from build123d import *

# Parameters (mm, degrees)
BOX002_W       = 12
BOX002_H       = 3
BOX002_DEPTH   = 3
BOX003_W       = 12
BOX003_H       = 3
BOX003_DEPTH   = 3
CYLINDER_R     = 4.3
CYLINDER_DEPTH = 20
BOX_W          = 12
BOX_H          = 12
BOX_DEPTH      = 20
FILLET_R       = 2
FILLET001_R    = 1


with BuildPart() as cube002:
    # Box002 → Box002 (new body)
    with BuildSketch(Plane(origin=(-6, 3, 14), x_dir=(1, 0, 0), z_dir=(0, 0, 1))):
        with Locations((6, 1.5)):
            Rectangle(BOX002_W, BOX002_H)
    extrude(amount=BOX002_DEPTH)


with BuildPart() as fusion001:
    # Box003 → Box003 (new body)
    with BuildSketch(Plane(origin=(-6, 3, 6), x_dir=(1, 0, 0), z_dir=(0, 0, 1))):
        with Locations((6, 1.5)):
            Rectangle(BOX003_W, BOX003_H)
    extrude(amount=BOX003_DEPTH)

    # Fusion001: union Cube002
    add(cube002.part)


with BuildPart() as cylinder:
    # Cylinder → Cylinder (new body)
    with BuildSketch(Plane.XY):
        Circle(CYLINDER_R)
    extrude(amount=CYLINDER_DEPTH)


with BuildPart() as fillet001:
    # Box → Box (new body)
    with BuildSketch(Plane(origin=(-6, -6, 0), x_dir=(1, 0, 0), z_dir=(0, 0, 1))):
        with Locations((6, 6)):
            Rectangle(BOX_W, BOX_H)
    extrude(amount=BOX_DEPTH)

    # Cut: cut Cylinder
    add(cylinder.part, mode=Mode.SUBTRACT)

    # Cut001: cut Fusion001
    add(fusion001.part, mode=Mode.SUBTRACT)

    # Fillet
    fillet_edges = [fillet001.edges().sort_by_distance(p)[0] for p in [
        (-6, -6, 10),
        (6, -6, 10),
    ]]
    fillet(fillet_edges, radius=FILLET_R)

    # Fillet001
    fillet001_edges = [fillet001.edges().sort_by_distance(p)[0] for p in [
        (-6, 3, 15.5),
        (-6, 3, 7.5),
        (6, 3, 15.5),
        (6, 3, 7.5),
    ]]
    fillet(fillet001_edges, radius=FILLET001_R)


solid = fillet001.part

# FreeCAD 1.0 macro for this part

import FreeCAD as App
import Part
import Sketcher
from FreeCAD import Vector
Q = App.Units.Quantity


def edges_at(feature, points):
    """Names of the edges that pass closest to the given points."""
    edges = feature.Shape.Edges
    near = lambda p: min(range(len(edges)), key=lambda i: edges[i].distToShape(Part.Vertex(*p))[0])
    return sorted({f"Edge{near(p) + 1}" for p in points})

doc = App.newDocument("Part")
params = doc.addObject("Spreadsheet::Sheet", "Params")
for row, (alias, value) in enumerate([
    ("sketch1_width", "12 mm"),
    ("sketch1_height", "3 mm"),
    ("pad1_length", "3 mm"),
    ("sketch2_width", "12 mm"),
    ("sketch2_height", "3 mm"),
    ("pad2_length", "3 mm"),
    ("sketch3_diameter", "8.6 mm"),
    ("pad3_length", "20 mm"),
    ("sketch4_width", "12 mm"),
    ("pad4_length", "20 mm"),
    ("fillet_radius", "2 mm"),
    ("fillet2_radius", "1 mm"),
], start=1):
    params.set(f"A{row}", alias)
    params.set(f"B{row}", "=" + value)
    params.setAlias(f"B{row}", alias)

body = doc.addObject("PartDesign::Body", "Body")

# Sketch on XY plane
sketch1 = body.newObject("Sketcher::SketchObject", "Sketch")
sketch1.AttachmentSupport = (doc.getObject("XY_Plane"), [""])
sketch1.MapMode = "FlatFace"
sketch1.AttachmentOffset = App.Placement(Vector(0, 0, 14), App.Rotation())
sketch1.addGeometry(Part.LineSegment(Vector(-6, 6, 0), Vector(-6, 3, 0)), False)
sketch1.addGeometry(Part.LineSegment(Vector(-6, 3, 0), Vector(6, 3, 0)), False)
sketch1.addGeometry(Part.LineSegment(Vector(6, 3, 0), Vector(6, 6, 0)), False)
sketch1.addGeometry(Part.LineSegment(Vector(6, 6, 0), Vector(-6, 6, 0)), False)
sketch1.addConstraint(Sketcher.Constraint("Coincident", 0, 2, 1, 1))
sketch1.addConstraint(Sketcher.Constraint("Coincident", 1, 2, 2, 1))
sketch1.addConstraint(Sketcher.Constraint("Coincident", 2, 2, 3, 1))
sketch1.addConstraint(Sketcher.Constraint("Coincident", 3, 2, 0, 1))
sketch1.addConstraint(Sketcher.Constraint("Vertical", 0))
sketch1.addConstraint(Sketcher.Constraint("Horizontal", 1))
sketch1.addConstraint(Sketcher.Constraint("Vertical", 2))
sketch1.addConstraint(Sketcher.Constraint("Horizontal", 3))
sketch1.addConstraint(Sketcher.Constraint("DistanceX", 1, 1, 1, 2, Q("12 mm")))
sketch1.addConstraint(Sketcher.Constraint("DistanceY", 0, 2, 0, 1, Q("3 mm")))
sketch1.addConstraint(Sketcher.Constraint("DistanceX", 0, 2, -1, 1, Q("6 mm")))
sketch1.addConstraint(Sketcher.Constraint("DistanceY", -1, 1, 0, 2, Q("3 mm")))
sketch1.setExpression("Constraints[8]", "Params.sketch1_width")
sketch1.setExpression("Constraints[9]", "Params.sketch1_height")
pad1 = body.newObject("PartDesign::Pad", "Pad")
pad1.Profile = sketch1
pad1.setExpression("Length", "Params.pad1_length")
body2 = doc.addObject("PartDesign::Body", "Body001")
body2.AllowCompound = True

# Sketch on XY plane
sketch2 = body2.newObject("Sketcher::SketchObject", "Sketch001")
sketch2.AttachmentSupport = (doc.getObject("XY_Plane001"), [""])
sketch2.MapMode = "FlatFace"
sketch2.AttachmentOffset = App.Placement(Vector(0, 0, 6), App.Rotation())
sketch2.addGeometry(Part.LineSegment(Vector(-6, 6, 0), Vector(-6, 3, 0)), False)
sketch2.addGeometry(Part.LineSegment(Vector(-6, 3, 0), Vector(6, 3, 0)), False)
sketch2.addGeometry(Part.LineSegment(Vector(6, 3, 0), Vector(6, 6, 0)), False)
sketch2.addGeometry(Part.LineSegment(Vector(6, 6, 0), Vector(-6, 6, 0)), False)
sketch2.addConstraint(Sketcher.Constraint("Coincident", 0, 2, 1, 1))
sketch2.addConstraint(Sketcher.Constraint("Coincident", 1, 2, 2, 1))
sketch2.addConstraint(Sketcher.Constraint("Coincident", 2, 2, 3, 1))
sketch2.addConstraint(Sketcher.Constraint("Coincident", 3, 2, 0, 1))
sketch2.addConstraint(Sketcher.Constraint("Vertical", 0))
sketch2.addConstraint(Sketcher.Constraint("Horizontal", 1))
sketch2.addConstraint(Sketcher.Constraint("Vertical", 2))
sketch2.addConstraint(Sketcher.Constraint("Horizontal", 3))
sketch2.addConstraint(Sketcher.Constraint("DistanceX", 1, 1, 1, 2, Q("12 mm")))
sketch2.addConstraint(Sketcher.Constraint("DistanceY", 0, 2, 0, 1, Q("3 mm")))
sketch2.addConstraint(Sketcher.Constraint("DistanceX", 0, 2, -1, 1, Q("6 mm")))
sketch2.addConstraint(Sketcher.Constraint("DistanceY", -1, 1, 0, 2, Q("3 mm")))
sketch2.setExpression("Constraints[8]", "Params.sketch2_width")
sketch2.setExpression("Constraints[9]", "Params.sketch2_height")
pad2 = body2.newObject("PartDesign::Pad", "Pad001")
pad2.Profile = sketch2
pad2.setExpression("Length", "Params.pad2_length")
doc.recompute()

boolean = body2.newObject("PartDesign::Boolean", "Boolean")
boolean.Type = "Fuse"
boolean.addObjects([body])
body3 = doc.addObject("PartDesign::Body", "Body002")

# Sketch on XY plane
sketch3 = body3.newObject("Sketcher::SketchObject", "Sketch002")
sketch3.AttachmentSupport = (doc.getObject("XY_Plane002"), [""])
sketch3.MapMode = "FlatFace"
sketch3.addGeometry(Part.Circle(Vector(0, 0, 0), Vector(0, 0, 1), 4.3), False)
sketch3.addConstraint(Sketcher.Constraint("Coincident", 0, 3, -1, 1))
sketch3.addConstraint(Sketcher.Constraint("Diameter", 0, Q("8.6 mm")))
sketch3.setExpression("Constraints[1]", "Params.sketch3_diameter")
pad3 = body3.newObject("PartDesign::Pad", "Pad002")
pad3.Profile = sketch3
pad3.setExpression("Length", "Params.pad3_length")
body4 = doc.addObject("PartDesign::Body", "Body003")

# Sketch on XY plane
sketch4 = body4.newObject("Sketcher::SketchObject", "Sketch003")
sketch4.AttachmentSupport = (doc.getObject("XY_Plane003"), [""])
sketch4.MapMode = "FlatFace"
sketch4.addGeometry(Part.LineSegment(Vector(-6, 6, 0), Vector(-6, -6, 0)), False)
sketch4.addGeometry(Part.LineSegment(Vector(-6, -6, 0), Vector(6, -6, 0)), False)
sketch4.addGeometry(Part.LineSegment(Vector(6, -6, 0), Vector(6, 6, 0)), False)
sketch4.addGeometry(Part.LineSegment(Vector(6, 6, 0), Vector(-6, 6, 0)), False)
sketch4.addConstraint(Sketcher.Constraint("Coincident", 0, 2, 1, 1))
sketch4.addConstraint(Sketcher.Constraint("Coincident", 1, 2, 2, 1))
sketch4.addConstraint(Sketcher.Constraint("Coincident", 2, 2, 3, 1))
sketch4.addConstraint(Sketcher.Constraint("Coincident", 3, 2, 0, 1))
sketch4.addConstraint(Sketcher.Constraint("Vertical", 0))
sketch4.addConstraint(Sketcher.Constraint("Horizontal", 1))
sketch4.addConstraint(Sketcher.Constraint("Vertical", 2))
sketch4.addConstraint(Sketcher.Constraint("Horizontal", 3))
sketch4.addConstraint(Sketcher.Constraint("Symmetric", 0, 2, 2, 2, -1, 1))
sketch4.addConstraint(Sketcher.Constraint("Equal", 3, 0))
sketch4.addConstraint(Sketcher.Constraint("DistanceX", 1, 1, 1, 2, Q("12 mm")))
sketch4.setExpression("Constraints[10]", "Params.sketch4_width")
pad4 = body4.newObject("PartDesign::Pad", "Pad003")
pad4.Profile = sketch4
pad4.setExpression("Length", "Params.pad4_length")
doc.recompute()

boolean2 = body4.newObject("PartDesign::Boolean", "Boolean001")
boolean2.Type = "Cut"
boolean2.addObjects([body3])
doc.recompute()

boolean3 = body4.newObject("PartDesign::Boolean", "Boolean002")
boolean3.Type = "Cut"
boolean3.addObjects([body2])
doc.recompute()

fillet = body4.newObject("PartDesign::Fillet", "Fillet")
fillet.Base = (boolean3, edges_at(boolean3, [(-6, -6, 10), (6, -6, 10)]))
fillet.setExpression("Radius", "Params.fillet_radius")
doc.recompute()

fillet2 = body4.newObject("PartDesign::Fillet", "Fillet001")
fillet2.Base = (fillet, edges_at(fillet, [
    (-6, 3, 15.5),
    (-6, 3, 7.5),
    (6, 3, 15.5),
    (6, 3, 7.5),
]))
fillet2.setExpression("Radius", "Params.fillet2_radius")

doc.recompute()
